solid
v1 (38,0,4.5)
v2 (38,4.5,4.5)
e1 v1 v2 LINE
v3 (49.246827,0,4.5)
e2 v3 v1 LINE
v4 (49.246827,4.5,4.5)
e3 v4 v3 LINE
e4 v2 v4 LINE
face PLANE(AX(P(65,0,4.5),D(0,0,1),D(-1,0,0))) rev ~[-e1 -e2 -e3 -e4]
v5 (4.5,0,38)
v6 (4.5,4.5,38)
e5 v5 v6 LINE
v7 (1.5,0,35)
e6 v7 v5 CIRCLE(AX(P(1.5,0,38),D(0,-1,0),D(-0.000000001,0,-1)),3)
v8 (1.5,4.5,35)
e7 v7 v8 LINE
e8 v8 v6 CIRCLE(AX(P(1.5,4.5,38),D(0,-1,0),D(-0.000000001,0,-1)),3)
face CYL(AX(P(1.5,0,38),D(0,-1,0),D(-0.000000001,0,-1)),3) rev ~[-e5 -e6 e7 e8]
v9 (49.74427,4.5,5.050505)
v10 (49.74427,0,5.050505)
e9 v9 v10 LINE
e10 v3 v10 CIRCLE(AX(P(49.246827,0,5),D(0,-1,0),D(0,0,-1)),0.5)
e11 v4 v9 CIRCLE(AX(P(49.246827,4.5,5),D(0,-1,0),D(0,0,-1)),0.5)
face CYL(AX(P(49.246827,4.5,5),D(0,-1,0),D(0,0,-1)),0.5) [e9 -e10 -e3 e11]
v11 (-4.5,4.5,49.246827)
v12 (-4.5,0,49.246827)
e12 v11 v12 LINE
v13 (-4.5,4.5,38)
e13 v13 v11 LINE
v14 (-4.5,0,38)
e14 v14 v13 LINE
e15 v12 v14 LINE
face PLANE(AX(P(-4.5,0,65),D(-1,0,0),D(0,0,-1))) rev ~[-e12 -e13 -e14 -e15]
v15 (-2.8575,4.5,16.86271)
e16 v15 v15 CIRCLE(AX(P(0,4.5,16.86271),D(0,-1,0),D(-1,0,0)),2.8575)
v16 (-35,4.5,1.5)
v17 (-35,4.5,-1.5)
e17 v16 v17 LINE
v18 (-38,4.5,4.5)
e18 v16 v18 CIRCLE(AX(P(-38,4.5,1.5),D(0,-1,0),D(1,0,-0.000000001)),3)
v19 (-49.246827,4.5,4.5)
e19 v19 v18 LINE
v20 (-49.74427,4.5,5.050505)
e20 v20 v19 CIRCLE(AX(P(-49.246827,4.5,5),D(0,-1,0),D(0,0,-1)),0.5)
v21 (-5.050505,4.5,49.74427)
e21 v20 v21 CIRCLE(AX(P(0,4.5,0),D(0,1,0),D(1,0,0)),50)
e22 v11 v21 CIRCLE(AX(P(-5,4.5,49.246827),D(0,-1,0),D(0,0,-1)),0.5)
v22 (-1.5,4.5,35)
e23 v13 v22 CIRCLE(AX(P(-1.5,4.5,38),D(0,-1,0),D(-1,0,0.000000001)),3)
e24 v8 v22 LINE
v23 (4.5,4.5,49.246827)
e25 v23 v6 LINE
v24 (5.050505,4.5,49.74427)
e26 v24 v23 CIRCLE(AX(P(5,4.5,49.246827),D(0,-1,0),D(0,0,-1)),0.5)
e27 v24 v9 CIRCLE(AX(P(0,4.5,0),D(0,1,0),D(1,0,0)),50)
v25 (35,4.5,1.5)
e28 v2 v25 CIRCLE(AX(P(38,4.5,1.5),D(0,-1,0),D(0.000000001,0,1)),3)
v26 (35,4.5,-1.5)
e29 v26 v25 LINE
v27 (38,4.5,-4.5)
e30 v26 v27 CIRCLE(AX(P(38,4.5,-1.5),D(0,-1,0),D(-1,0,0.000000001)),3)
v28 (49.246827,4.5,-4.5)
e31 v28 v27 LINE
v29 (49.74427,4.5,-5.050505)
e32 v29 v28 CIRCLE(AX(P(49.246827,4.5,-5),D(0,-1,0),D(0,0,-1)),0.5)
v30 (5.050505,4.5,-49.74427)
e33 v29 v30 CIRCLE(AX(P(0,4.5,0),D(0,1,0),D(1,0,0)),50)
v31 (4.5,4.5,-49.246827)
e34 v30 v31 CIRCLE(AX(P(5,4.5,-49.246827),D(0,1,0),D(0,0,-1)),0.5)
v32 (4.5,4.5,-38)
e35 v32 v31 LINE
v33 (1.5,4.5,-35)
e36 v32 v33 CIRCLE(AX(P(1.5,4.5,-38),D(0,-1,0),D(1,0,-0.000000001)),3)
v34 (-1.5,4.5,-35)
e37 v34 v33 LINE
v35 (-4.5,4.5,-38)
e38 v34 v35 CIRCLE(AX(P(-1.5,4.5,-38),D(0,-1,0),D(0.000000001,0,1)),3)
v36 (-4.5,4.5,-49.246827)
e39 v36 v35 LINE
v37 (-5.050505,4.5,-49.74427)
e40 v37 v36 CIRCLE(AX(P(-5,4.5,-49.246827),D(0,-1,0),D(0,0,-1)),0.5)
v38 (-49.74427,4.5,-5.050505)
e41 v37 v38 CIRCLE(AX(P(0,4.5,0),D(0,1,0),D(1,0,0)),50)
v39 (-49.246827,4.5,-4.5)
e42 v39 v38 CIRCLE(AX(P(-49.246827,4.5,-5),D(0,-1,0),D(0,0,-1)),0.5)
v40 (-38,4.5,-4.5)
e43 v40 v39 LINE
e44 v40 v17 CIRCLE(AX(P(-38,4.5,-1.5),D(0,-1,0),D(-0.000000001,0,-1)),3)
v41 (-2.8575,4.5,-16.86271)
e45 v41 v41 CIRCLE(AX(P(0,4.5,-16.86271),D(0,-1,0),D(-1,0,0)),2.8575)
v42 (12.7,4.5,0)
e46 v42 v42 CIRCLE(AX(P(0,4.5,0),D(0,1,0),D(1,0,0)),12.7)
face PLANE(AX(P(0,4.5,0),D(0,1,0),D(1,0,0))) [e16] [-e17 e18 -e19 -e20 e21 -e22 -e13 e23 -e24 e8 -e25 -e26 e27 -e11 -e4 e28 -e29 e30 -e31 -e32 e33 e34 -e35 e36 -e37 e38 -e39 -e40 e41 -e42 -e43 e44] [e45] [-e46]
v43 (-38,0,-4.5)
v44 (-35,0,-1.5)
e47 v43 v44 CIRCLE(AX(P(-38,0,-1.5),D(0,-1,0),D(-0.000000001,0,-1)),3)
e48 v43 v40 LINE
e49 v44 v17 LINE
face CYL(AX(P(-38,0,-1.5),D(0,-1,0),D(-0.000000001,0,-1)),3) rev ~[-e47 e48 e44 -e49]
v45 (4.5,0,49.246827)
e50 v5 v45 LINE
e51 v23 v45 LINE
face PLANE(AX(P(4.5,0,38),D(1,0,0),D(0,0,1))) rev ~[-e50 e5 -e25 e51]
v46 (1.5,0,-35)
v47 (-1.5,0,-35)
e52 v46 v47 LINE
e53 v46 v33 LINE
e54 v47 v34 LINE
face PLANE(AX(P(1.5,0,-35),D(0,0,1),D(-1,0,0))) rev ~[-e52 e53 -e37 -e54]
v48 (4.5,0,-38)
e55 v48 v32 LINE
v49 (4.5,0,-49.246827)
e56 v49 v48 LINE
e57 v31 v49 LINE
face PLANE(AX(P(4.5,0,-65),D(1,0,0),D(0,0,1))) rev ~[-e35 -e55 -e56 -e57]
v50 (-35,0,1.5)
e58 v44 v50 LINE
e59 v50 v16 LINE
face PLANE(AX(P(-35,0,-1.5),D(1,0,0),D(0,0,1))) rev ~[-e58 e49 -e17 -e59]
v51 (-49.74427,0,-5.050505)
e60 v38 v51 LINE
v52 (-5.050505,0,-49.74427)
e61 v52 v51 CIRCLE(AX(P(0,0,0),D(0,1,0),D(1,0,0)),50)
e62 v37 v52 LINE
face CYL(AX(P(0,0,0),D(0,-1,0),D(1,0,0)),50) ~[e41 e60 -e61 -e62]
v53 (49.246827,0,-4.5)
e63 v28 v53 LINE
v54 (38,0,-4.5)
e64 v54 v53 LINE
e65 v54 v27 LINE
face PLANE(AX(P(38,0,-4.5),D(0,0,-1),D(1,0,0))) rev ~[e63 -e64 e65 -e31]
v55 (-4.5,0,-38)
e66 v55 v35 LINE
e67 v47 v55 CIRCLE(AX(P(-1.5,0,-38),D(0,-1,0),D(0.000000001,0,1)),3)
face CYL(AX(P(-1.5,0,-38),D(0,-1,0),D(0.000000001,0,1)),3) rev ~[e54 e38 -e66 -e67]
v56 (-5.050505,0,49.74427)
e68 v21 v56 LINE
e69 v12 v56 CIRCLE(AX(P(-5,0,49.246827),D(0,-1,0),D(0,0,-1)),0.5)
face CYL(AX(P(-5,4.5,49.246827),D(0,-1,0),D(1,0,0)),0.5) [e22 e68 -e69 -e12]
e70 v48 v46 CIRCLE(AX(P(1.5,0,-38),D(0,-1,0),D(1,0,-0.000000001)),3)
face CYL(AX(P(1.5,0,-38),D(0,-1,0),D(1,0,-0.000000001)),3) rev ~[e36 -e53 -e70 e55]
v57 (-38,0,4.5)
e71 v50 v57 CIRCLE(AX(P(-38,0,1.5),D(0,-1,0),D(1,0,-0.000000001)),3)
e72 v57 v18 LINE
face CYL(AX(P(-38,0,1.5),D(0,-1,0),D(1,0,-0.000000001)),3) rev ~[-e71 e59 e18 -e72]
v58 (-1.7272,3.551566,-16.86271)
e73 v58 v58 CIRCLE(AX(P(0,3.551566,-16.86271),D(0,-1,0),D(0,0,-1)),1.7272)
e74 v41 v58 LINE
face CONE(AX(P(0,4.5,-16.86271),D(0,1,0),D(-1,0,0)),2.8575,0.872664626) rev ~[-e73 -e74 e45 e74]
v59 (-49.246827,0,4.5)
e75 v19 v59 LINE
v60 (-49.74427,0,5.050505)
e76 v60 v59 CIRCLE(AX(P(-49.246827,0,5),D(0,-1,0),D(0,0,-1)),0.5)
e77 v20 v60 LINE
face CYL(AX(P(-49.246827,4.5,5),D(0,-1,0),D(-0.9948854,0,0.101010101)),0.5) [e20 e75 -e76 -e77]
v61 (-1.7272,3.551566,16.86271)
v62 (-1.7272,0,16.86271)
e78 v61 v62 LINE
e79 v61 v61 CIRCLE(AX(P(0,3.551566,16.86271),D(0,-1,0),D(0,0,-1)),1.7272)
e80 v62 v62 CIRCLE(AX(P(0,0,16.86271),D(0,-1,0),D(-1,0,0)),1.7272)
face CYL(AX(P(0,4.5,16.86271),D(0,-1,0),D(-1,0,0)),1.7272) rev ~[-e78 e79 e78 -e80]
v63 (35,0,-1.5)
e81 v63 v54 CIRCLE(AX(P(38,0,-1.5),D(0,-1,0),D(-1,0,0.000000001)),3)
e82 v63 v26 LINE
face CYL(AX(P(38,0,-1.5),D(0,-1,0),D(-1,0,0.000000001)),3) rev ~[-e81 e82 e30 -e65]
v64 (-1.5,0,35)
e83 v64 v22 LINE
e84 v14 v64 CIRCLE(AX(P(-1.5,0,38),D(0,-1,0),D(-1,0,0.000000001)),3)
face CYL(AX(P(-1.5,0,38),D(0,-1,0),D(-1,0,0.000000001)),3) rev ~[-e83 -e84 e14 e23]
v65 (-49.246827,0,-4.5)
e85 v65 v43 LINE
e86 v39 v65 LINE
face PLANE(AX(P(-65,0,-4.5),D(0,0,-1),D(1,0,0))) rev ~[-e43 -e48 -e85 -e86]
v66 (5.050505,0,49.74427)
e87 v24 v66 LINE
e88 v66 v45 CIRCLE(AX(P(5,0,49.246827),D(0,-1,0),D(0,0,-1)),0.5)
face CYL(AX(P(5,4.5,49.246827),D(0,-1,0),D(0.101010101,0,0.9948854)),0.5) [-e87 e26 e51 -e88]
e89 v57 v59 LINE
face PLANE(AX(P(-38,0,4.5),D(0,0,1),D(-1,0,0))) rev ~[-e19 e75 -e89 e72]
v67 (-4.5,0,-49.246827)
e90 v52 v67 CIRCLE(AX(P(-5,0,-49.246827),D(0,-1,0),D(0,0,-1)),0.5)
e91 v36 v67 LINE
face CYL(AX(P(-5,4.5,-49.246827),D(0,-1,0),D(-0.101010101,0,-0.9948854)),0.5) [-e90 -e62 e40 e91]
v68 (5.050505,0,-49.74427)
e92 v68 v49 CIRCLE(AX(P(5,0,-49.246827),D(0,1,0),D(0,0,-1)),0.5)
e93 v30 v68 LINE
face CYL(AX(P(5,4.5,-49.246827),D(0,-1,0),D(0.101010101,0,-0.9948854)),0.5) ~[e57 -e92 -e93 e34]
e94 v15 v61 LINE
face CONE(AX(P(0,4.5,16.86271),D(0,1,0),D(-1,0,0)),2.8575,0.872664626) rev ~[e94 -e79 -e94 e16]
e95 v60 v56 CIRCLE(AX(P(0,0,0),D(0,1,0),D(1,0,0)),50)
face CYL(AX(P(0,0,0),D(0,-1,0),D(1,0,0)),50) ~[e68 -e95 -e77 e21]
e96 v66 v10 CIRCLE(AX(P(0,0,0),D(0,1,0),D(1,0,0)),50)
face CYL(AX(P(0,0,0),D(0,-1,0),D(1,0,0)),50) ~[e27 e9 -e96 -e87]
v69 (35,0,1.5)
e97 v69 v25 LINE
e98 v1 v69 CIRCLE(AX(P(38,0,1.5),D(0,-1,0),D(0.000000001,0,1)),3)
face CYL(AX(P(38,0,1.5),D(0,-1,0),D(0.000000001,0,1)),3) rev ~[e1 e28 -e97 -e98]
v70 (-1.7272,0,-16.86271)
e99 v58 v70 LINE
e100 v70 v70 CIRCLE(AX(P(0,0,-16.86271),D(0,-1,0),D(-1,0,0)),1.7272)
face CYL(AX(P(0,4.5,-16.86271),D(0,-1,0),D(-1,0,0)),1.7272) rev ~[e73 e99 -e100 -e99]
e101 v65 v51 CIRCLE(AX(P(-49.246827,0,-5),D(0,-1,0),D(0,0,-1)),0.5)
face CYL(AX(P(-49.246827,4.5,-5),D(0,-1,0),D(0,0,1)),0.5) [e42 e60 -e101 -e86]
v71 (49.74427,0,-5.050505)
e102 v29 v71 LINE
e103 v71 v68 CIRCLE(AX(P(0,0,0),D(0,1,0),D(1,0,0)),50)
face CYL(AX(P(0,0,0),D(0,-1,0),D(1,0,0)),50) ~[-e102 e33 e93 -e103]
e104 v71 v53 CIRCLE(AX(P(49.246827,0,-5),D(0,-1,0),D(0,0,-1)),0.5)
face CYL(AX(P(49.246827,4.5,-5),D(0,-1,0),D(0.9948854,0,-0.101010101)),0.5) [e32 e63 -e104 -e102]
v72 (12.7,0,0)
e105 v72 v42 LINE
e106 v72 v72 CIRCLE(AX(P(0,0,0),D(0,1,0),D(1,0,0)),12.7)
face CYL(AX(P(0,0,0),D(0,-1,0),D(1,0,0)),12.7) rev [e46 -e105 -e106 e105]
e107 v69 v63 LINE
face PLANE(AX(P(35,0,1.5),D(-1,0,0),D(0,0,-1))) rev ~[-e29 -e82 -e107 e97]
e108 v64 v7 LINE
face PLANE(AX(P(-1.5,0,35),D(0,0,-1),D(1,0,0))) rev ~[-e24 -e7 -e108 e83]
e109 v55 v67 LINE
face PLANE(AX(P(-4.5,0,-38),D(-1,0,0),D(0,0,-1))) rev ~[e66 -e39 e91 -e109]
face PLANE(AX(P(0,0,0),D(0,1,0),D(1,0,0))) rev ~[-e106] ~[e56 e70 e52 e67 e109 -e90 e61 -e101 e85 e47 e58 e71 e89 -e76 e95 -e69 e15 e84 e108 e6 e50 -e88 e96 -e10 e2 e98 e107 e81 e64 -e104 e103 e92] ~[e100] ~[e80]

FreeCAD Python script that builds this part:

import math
import FreeCAD as App
import Part
import Sketcher
from FreeCAD import Vector


def edges_at(feature, points):
    """Names of the edges that pass closest to the given points."""
    edges = feature.Shape.Edges
    near = lambda p: min(range(len(edges)), key=lambda i: edges[i].distToShape(Part.Vertex(*p))[0])
    return sorted({f"Edge{near(p) + 1}" for p in points})

doc = App.newDocument("Part")
body = doc.addObject("PartDesign::Body", "Body")

# Sketch on XZ plane
sketch1 = doc.addObject("Sketcher::SketchObject", "Sketch")
body.addObject(sketch1)
sketch1.AttachmentSupport = (doc.XZ_Plane, [""])
sketch1.MapMode = "FlatFace"
sketch1.addGeometry(Part.Circle(Vector(0, 0, 0), Vector(0, 0, 1), 50), False)
sketch1.addGeometry(Part.Circle(Vector(0, 0, 0), Vector(0, 0, 1), 13), False)
sketch1.addConstraint(Sketcher.Constraint("Coincident", 0, 3, -1, 1))
sketch1.addConstraint(Sketcher.Constraint("Coincident", 1, 3, -1, 1))
sketch1.addConstraint(Sketcher.Constraint("Diameter", 0, 100.0))
sketch1.addConstraint(Sketcher.Constraint("Diameter", 1, 25.4))
pad1 = doc.addObject("PartDesign::Pad", "Pad")
body.addObject(pad1)
pad1.Profile = sketch1
pad1.Length = 4.5
pad1.Reversed = True

# Sketch on XZ plane
sketch2 = doc.addObject("Sketcher::SketchObject", "Sketch001")
body.addObject(sketch2)
sketch2.AttachmentSupport = (doc.XZ_Plane, [""])
sketch2.MapMode = "FlatFace"
sketch2.addGeometry(Part.LineSegment(Vector(-65, 4.5, 0), Vector(-38, 4.5, 0)), False)
sketch2.addGeometry(Part.ArcOfCircle(Part.Circle(Vector(-38, 1.5, 0), Vector(0, 0, 1), 3), math.radians(0), math.radians(90)), False)
sketch2.addGeometry(Part.LineSegment(Vector(-35, 1.5, 0), Vector(-35, -1.5, 0)), False)
sketch2.addGeometry(Part.ArcOfCircle(Part.Circle(Vector(-38, -1.5, 0), Vector(0, 0, 1), 3), math.radians(-90), math.radians(0)), False)
sketch2.addGeometry(Part.LineSegment(Vector(-38, -4.5, 0), Vector(-65, -4.5, 0)), False)
sketch2.addGeometry(Part.LineSegment(Vector(-65, -4.5, 0), Vector(-65, 4.5, 0)), False)
sketch2.addGeometry(Part.LineSegment(Vector(-4.5, -65, 0), Vector(-4.5, -38, 0)), False)
sketch2.addGeometry(Part.ArcOfCircle(Part.Circle(Vector(-1.5, -38, 0), Vector(0, 0, 1), 3), math.radians(90), math.radians(180)), False)
sketch2.addGeometry(Part.LineSegment(Vector(-1.5, -35, 0), Vector(1.5, -35, 0)), False)
sketch2.addGeometry(Part.ArcOfCircle(Part.Circle(Vector(1.5, -38, 0), Vector(0, 0, 1), 3), math.radians(0), math.radians(90)), False)
sketch2.addGeometry(Part.LineSegment(Vector(4.5, -38, 0), Vector(4.5, -65, 0)), False)
sketch2.addGeometry(Part.LineSegment(Vector(4.5, -65, 0), Vector(-4.5, -65, 0)), False)
sketch2.addGeometry(Part.LineSegment(Vector(65, -4.5, 0), Vector(38, -4.5, 0)), False)
sketch2.addGeometry(Part.ArcOfCircle(Part.Circle(Vector(38, -1.5, 0), Vector(0, 0, 1), 3), math.radians(180), math.radians(270)), False)
sketch2.addGeometry(Part.LineSegment(Vector(35, -1.5, 0), Vector(35, 1.5, 0)), False)
sketch2.addGeometry(Part.ArcOfCircle(Part.Circle(Vector(38, 1.5, 0), Vector(0, 0, 1), 3), math.radians(90), math.radians(180)), False)
sketch2.addGeometry(Part.LineSegment(Vector(38, 4.5, 0), Vector(65, 4.5, 0)), False)
sketch2.addGeometry(Part.LineSegment(Vector(65, 4.5, 0), Vector(65, -4.5, 0)), False)
sketch2.addGeometry(Part.LineSegment(Vector(4.5, 65, 0), Vector(4.5, 38, 0)), False)
sketch2.addGeometry(Part.ArcOfCircle(Part.Circle(Vector(1.5, 38, 0), Vector(0, 0, 1), 3), math.radians(-90), math.radians(0)), False)
sketch2.addGeometry(Part.LineSegment(Vector(1.5, 35, 0), Vector(-1.5, 35, 0)), False)
sketch2.addGeometry(Part.ArcOfCircle(Part.Circle(Vector(-1.5, 38, 0), Vector(0, 0, 1), 3), math.radians(180), math.radians(270)), False)
sketch2.addGeometry(Part.LineSegment(Vector(-4.5, 38, 0), Vector(-4.5, 65, 0)), False)
sketch2.addGeometry(Part.LineSegment(Vector(-4.5, 65, 0), Vector(4.5, 65, 0)), False)
sketch2.addConstraint(Sketcher.Constraint("Tangent", 0, 2, 1, 2))
sketch2.addConstraint(Sketcher.Constraint("Tangent", 1, 1, 2, 1))
sketch2.addConstraint(Sketcher.Constraint("Tangent", 2, 2, 3, 2))
sketch2.addConstraint(Sketcher.Constraint("Tangent", 3, 1, 4, 1))
sketch2.addConstraint(Sketcher.Constraint("Coincident", 4, 2, 5, 1))
sketch2.addConstraint(Sketcher.Constraint("Coincident", 5, 2, 0, 1))
sketch2.addConstraint(Sketcher.Constraint("Tangent", 6, 2, 7, 2))
sketch2.addConstraint(Sketcher.Constraint("Tangent", 7, 1, 8, 1))
sketch2.addConstraint(Sketcher.Constraint("Tangent", 8, 2, 9, 2))
sketch2.addConstraint(Sketcher.Constraint("Tangent", 9, 1, 10, 1))
sketch2.addConstraint(Sketcher.Constraint("Coincident", 10, 2, 11, 1))
sketch2.addConstraint(Sketcher.Constraint("Coincident", 11, 2, 6, 1))
sketch2.addConstraint(Sketcher.Constraint("Tangent", 12, 2, 13, 2))
sketch2.addConstraint(Sketcher.Constraint("Tangent", 13, 1, 14, 1))
sketch2.addConstraint(Sketcher.Constraint("Tangent", 14, 2, 15, 2))
sketch2.addConstraint(Sketcher.Constraint("Tangent", 15, 1, 16, 1))
sketch2.addConstraint(Sketcher.Constraint("Coincident", 16, 2, 17, 1))
sketch2.addConstraint(Sketcher.Constraint("Coincident", 17, 2, 12, 1))
sketch2.addConstraint(Sketcher.Constraint("Tangent", 18, 2, 19, 2))
sketch2.addConstraint(Sketcher.Constraint("Tangent", 19, 1, 20, 1))
sketch2.addConstraint(Sketcher.Constraint("Tangent", 20, 2, 21, 2))
sketch2.addConstraint(Sketcher.Constraint("Tangent", 21, 1, 22, 1))
sketch2.addConstraint(Sketcher.Constraint("Coincident", 22, 2, 23, 1))
sketch2.addConstraint(Sketcher.Constraint("Coincident", 23, 2, 18, 1))
sketch2.addConstraint(Sketcher.Constraint("Horizontal", 0))
sketch2.addConstraint(Sketcher.Constraint("Vertical", 2))
sketch2.addConstraint(Sketcher.Constraint("Horizontal", 4))
sketch2.addConstraint(Sketcher.Constraint("Vertical", 5))
sketch2.addConstraint(Sketcher.Constraint("Vertical", 6))
sketch2.addConstraint(Sketcher.Constraint("Horizontal", 8))
sketch2.addConstraint(Sketcher.Constraint("Vertical", 10))
sketch2.addConstraint(Sketcher.Constraint("Horizontal", 11))
sketch2.addConstraint(Sketcher.Constraint("Horizontal", 12))
sketch2.addConstraint(Sketcher.Constraint("Vertical", 14))
sketch2.addConstraint(Sketcher.Constraint("Horizontal", 16))
sketch2.addConstraint(Sketcher.Constraint("Vertical", 17))
sketch2.addConstraint(Sketcher.Constraint("Vertical", 18))
sketch2.addConstraint(Sketcher.Constraint("Horizontal", 20))
sketch2.addConstraint(Sketcher.Constraint("Vertical", 22))
sketch2.addConstraint(Sketcher.Constraint("Horizontal", 23))
sketch2.addConstraint(Sketcher.Constraint("Equal", 1, 3))
sketch2.addConstraint(Sketcher.Constraint("Equal", 3, 7))
sketch2.addConstraint(Sketcher.Constraint("Equal", 7, 9))
sketch2.addConstraint(Sketcher.Constraint("Equal", 9, 13))
sketch2.addConstraint(Sketcher.Constraint("Equal", 13, 15))
sketch2.addConstraint(Sketcher.Constraint("Equal", 15, 19))
sketch2.addConstraint(Sketcher.Constraint("Equal", 19, 21))
sketch2.addConstraint(Sketcher.Constraint("Symmetric", 1, 3, 13, 3, -1, 1))
sketch2.addConstraint(Sketcher.Constraint("Symmetric", 7, 3, 19, 3, -1, 1))
sketch2.addConstraint(Sketcher.Constraint("Symmetric", 4, 2, 16, 2, -1, 1))
sketch2.addConstraint(Sketcher.Constraint("Symmetric", 10, 2, 22, 2, -1, 1))
sketch2.addConstraint(Sketcher.Constraint("Horizontal", 3, 3, 13, 3))
sketch2.addConstraint(Sketcher.Constraint("Vertical", 9, 3, 19, 3))
sketch2.addConstraint(Sketcher.Constraint("Equal", 20, 2))
sketch2.addConstraint(Sketcher.Constraint("Equal", 16, 6))
sketch2.addConstraint(Sketcher.Constraint("Radius", 1, 3.0))
sketch2.addConstraint(Sketcher.Constraint("DistanceX", 0, 1, 0, 2, 27.0))
sketch2.addConstraint(Sketcher.Constraint("DistanceX", 8, 1, 8, 2, 3.0))
sketch2.addConstraint(Sketcher.Constraint("DistanceX", 1, 3, -1, 1, 38.0))
sketch2.addConstraint(Sketcher.Constraint("DistanceY", 7, 3, -1, 1, 38.0))
pocket1 = doc.addObject("PartDesign::Pocket", "Pocket")
body.addObject(pocket1)
pocket1.Profile = sketch2
pocket1.Length = 10
doc.recompute()

fillet = doc.addObject("PartDesign::Fillet", "Fillet")
body.addObject(fillet)
fillet.Base = (pocket1, edges_at(pocket1, [
    (-49.797, 2.25, -4.5),
    (-49.797, 2.25, 4.5),
    (4.5, 2.25, -49.797),
    (-4.5, 2.25, -49.797),
    (49.797, 2.25, 4.5),
    (49.797, 2.25, -4.5),
    (-4.5, 2.25, 49.797),
    (4.5, 2.25, 49.797),
]))
fillet.Radius = 0.5

# Sketch on XZ plane
sketch3 = doc.addObject("Sketcher::SketchObject", "Sketch002")
body.addObject(sketch3)
sketch3.AttachmentSupport = (doc.XZ_Plane, [""])
sketch3.MapMode = "FlatFace"
sketch3.AttachmentOffset = App.Placement(Vector(0, 0, -4.5), App.Rotation())
sketch3.addGeometry(Part.Circle(Vector(0, 16.9, 0), Vector(0, 0, 1), 1.7), False)
sketch3.addGeometry(Part.Circle(Vector(0, -16.9, 0), Vector(0, 0, 1), 1.7), False)
sketch3.addConstraint(Sketcher.Constraint("Equal", 0, 1))
sketch3.addConstraint(Sketcher.Constraint("Symmetric", 0, 3, 1, 3, -1, 1))
sketch3.addConstraint(Sketcher.Constraint("PointOnObject", 0, 3, -2))
sketch3.addConstraint(Sketcher.Constraint("Diameter", 0, 3.4544))
sketch3.addConstraint(Sketcher.Constraint("DistanceY", -1, 1, 0, 3, 16.86271))
doc.recompute()
hole = doc.addObject("PartDesign::Hole", "Hole")
body.addObject(hole)
hole.Profile = sketch3
hole.ThreadType = "None"
hole.Diameter = 3.4544
hole.DepthType = "ThroughAll"
hole.HoleCutType = "Countersink"
hole.HoleCutDiameter = 5.715
hole.HoleCutCountersinkAngle = 100
hole.Reversed = True

doc.recompute()
